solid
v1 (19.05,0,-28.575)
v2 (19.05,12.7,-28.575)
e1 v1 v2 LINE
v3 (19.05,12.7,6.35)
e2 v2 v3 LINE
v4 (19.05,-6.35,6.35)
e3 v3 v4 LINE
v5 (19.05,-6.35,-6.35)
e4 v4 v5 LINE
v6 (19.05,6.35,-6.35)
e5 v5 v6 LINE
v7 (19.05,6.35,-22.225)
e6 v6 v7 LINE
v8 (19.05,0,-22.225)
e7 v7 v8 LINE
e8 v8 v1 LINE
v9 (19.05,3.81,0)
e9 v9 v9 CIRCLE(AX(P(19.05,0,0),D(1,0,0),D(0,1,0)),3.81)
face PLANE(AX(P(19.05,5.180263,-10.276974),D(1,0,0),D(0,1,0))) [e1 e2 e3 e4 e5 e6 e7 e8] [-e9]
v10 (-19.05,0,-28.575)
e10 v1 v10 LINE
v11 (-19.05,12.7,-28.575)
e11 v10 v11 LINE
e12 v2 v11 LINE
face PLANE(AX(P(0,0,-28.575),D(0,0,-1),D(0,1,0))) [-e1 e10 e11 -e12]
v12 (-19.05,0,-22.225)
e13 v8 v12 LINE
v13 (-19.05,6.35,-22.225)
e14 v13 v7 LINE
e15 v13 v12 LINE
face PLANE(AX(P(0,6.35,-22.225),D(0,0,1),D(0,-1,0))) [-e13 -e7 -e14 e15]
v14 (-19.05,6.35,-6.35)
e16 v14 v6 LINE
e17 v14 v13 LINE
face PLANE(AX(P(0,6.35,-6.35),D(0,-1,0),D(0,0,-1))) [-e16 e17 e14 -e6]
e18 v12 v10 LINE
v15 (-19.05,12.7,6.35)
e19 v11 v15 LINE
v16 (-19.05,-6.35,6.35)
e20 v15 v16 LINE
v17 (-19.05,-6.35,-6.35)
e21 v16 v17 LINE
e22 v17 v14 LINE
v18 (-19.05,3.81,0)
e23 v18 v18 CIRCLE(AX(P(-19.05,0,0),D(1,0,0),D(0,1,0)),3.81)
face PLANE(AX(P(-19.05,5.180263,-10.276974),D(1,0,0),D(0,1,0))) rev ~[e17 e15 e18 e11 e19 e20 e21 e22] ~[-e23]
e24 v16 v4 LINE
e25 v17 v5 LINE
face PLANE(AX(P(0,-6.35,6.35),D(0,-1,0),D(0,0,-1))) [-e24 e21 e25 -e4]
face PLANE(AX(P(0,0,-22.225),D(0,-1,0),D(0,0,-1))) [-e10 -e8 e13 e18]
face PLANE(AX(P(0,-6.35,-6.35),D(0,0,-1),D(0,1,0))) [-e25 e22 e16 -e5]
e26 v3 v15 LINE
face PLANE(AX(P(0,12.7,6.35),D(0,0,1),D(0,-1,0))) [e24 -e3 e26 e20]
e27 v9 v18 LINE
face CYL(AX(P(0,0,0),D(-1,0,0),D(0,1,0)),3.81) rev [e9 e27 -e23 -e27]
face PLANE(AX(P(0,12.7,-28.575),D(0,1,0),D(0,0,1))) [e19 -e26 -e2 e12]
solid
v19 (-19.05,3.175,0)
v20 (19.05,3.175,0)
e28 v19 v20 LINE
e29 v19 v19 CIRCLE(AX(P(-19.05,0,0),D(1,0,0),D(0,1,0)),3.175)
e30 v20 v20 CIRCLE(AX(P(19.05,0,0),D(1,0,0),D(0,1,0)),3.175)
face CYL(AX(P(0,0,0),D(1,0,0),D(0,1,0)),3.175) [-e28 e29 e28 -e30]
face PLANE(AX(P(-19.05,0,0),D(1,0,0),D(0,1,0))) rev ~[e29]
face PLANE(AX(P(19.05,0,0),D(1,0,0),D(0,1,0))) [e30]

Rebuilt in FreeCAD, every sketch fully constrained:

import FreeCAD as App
import Part
import Sketcher
Q = App.Units.Quantity

doc = App.newDocument("Part")
body = doc.addObject("PartDesign::Body", "Body")

sketch1 = body.newObject("Sketcher::SketchObject", "Sketch")
sketch1.AttachmentSupport = (doc.getObject("YZ_Plane"), [""])
sketch1.MapMode = "FlatFace"
sketch1.addGeometry(Part.Circle(App.Vector(0, 0, 0), App.Vector(0, 0, 1), 3.175), False)
sketch1.addConstraint(Sketcher.Constraint("Coincident", 0, 3, -1, 1))
sketch1.addConstraint(Sketcher.Constraint("Diameter", 0, Q("0.25 in")))
pad1 = body.newObject("PartDesign::Pad", "Pad")
pad1.Profile = sketch1
pad1.Length = Q("1.5 in")
pad1.Midplane = True
body2 = doc.addObject("PartDesign::Body", "Body001")

sketch2 = body2.newObject("Sketcher::SketchObject", "Sketch001")
sketch2.AttachmentSupport = (doc.getObject("YZ_Plane001"), [""])
sketch2.MapMode = "FlatFace"
sketch2.addGeometry(Part.LineSegment(App.Vector(12.7, 6.35, 0), App.Vector(-6.35, 6.35, 0)), False)
sketch2.addGeometry(Part.LineSegment(App.Vector(-6.35, 6.35, 0), App.Vector(-6.35, -6.35, 0)), False)
sketch2.addGeometry(Part.LineSegment(App.Vector(-6.35, -6.35, 0), App.Vector(6.35, -6.35, 0)), False)
sketch2.addGeometry(Part.LineSegment(App.Vector(6.35, -6.35, 0), App.Vector(6.35, -22.225, 0)), False)
sketch2.addGeometry(Part.LineSegment(App.Vector(6.35, -22.225, 0), App.Vector(0, -22.225, 0)), False)
sketch2.addGeometry(Part.LineSegment(App.Vector(0, -22.225, 0), App.Vector(0, -28.575, 0)), False)
sketch2.addGeometry(Part.LineSegment(App.Vector(0, -28.575, 0), App.Vector(12.7, -28.575, 0)), False)
sketch2.addGeometry(Part.LineSegment(App.Vector(12.7, -28.575, 0), App.Vector(12.7, 6.35, 0)), False)
sketch2.addGeometry(Part.Circle(App.Vector(0, 0, 0), App.Vector(0, 0, 1), 3.81), False)
sketch2.addConstraint(Sketcher.Constraint("Coincident", 0, 2, 1, 1))
sketch2.addConstraint(Sketcher.Constraint("Coincident", 1, 2, 2, 1))
sketch2.addConstraint(Sketcher.Constraint("Coincident", 2, 2, 3, 1))
sketch2.addConstraint(Sketcher.Constraint("Coincident", 3, 2, 4, 1))
sketch2.addConstraint(Sketcher.Constraint("Coincident", 4, 2, 5, 1))
sketch2.addConstraint(Sketcher.Constraint("Coincident", 5, 2, 6, 1))
sketch2.addConstraint(Sketcher.Constraint("Coincident", 6, 2, 7, 1))
sketch2.addConstraint(Sketcher.Constraint("Coincident", 7, 2, 0, 1))
sketch2.addConstraint(Sketcher.Constraint("Horizontal", 0))
sketch2.addConstraint(Sketcher.Constraint("Vertical", 1))
sketch2.addConstraint(Sketcher.Constraint("Horizontal", 2))
sketch2.addConstraint(Sketcher.Constraint("Vertical", 3))
sketch2.addConstraint(Sketcher.Constraint("Horizontal", 4))
sketch2.addConstraint(Sketcher.Constraint("Vertical", 5))
sketch2.addConstraint(Sketcher.Constraint("Horizontal", 6))
sketch2.addConstraint(Sketcher.Constraint("Vertical", 7))
sketch2.addConstraint(Sketcher.Constraint("Coincident", 8, 3, -1, 1))
sketch2.addConstraint(Sketcher.Constraint("Symmetric", 0, 2, 2, 2, -1, 1))
sketch2.addConstraint(Sketcher.Constraint("PointOnObject", 4, 2, -2))
sketch2.addConstraint(Sketcher.Constraint("Equal", 2, 6))
sketch2.addConstraint(Sketcher.Constraint("Equal", 6, 1))
sketch2.addConstraint(Sketcher.Constraint("Equal", 4, 5))
sketch2.addConstraint(Sketcher.Constraint("Diameter", 8, Q("0.3 in")))
sketch2.addConstraint(Sketcher.Constraint("DistanceX", 2, 1, 2, 2, Q("0.5 in")))
sketch2.addConstraint(Sketcher.Constraint("DistanceY", 3, 2, 3, 1, Q("0.625 in")))
pad2 = body2.newObject("PartDesign::Pad", "Pad001")
pad2.Profile = sketch2
pad2.Length = Q("1.5 in")
pad2.Midplane = True

doc.recompute()
